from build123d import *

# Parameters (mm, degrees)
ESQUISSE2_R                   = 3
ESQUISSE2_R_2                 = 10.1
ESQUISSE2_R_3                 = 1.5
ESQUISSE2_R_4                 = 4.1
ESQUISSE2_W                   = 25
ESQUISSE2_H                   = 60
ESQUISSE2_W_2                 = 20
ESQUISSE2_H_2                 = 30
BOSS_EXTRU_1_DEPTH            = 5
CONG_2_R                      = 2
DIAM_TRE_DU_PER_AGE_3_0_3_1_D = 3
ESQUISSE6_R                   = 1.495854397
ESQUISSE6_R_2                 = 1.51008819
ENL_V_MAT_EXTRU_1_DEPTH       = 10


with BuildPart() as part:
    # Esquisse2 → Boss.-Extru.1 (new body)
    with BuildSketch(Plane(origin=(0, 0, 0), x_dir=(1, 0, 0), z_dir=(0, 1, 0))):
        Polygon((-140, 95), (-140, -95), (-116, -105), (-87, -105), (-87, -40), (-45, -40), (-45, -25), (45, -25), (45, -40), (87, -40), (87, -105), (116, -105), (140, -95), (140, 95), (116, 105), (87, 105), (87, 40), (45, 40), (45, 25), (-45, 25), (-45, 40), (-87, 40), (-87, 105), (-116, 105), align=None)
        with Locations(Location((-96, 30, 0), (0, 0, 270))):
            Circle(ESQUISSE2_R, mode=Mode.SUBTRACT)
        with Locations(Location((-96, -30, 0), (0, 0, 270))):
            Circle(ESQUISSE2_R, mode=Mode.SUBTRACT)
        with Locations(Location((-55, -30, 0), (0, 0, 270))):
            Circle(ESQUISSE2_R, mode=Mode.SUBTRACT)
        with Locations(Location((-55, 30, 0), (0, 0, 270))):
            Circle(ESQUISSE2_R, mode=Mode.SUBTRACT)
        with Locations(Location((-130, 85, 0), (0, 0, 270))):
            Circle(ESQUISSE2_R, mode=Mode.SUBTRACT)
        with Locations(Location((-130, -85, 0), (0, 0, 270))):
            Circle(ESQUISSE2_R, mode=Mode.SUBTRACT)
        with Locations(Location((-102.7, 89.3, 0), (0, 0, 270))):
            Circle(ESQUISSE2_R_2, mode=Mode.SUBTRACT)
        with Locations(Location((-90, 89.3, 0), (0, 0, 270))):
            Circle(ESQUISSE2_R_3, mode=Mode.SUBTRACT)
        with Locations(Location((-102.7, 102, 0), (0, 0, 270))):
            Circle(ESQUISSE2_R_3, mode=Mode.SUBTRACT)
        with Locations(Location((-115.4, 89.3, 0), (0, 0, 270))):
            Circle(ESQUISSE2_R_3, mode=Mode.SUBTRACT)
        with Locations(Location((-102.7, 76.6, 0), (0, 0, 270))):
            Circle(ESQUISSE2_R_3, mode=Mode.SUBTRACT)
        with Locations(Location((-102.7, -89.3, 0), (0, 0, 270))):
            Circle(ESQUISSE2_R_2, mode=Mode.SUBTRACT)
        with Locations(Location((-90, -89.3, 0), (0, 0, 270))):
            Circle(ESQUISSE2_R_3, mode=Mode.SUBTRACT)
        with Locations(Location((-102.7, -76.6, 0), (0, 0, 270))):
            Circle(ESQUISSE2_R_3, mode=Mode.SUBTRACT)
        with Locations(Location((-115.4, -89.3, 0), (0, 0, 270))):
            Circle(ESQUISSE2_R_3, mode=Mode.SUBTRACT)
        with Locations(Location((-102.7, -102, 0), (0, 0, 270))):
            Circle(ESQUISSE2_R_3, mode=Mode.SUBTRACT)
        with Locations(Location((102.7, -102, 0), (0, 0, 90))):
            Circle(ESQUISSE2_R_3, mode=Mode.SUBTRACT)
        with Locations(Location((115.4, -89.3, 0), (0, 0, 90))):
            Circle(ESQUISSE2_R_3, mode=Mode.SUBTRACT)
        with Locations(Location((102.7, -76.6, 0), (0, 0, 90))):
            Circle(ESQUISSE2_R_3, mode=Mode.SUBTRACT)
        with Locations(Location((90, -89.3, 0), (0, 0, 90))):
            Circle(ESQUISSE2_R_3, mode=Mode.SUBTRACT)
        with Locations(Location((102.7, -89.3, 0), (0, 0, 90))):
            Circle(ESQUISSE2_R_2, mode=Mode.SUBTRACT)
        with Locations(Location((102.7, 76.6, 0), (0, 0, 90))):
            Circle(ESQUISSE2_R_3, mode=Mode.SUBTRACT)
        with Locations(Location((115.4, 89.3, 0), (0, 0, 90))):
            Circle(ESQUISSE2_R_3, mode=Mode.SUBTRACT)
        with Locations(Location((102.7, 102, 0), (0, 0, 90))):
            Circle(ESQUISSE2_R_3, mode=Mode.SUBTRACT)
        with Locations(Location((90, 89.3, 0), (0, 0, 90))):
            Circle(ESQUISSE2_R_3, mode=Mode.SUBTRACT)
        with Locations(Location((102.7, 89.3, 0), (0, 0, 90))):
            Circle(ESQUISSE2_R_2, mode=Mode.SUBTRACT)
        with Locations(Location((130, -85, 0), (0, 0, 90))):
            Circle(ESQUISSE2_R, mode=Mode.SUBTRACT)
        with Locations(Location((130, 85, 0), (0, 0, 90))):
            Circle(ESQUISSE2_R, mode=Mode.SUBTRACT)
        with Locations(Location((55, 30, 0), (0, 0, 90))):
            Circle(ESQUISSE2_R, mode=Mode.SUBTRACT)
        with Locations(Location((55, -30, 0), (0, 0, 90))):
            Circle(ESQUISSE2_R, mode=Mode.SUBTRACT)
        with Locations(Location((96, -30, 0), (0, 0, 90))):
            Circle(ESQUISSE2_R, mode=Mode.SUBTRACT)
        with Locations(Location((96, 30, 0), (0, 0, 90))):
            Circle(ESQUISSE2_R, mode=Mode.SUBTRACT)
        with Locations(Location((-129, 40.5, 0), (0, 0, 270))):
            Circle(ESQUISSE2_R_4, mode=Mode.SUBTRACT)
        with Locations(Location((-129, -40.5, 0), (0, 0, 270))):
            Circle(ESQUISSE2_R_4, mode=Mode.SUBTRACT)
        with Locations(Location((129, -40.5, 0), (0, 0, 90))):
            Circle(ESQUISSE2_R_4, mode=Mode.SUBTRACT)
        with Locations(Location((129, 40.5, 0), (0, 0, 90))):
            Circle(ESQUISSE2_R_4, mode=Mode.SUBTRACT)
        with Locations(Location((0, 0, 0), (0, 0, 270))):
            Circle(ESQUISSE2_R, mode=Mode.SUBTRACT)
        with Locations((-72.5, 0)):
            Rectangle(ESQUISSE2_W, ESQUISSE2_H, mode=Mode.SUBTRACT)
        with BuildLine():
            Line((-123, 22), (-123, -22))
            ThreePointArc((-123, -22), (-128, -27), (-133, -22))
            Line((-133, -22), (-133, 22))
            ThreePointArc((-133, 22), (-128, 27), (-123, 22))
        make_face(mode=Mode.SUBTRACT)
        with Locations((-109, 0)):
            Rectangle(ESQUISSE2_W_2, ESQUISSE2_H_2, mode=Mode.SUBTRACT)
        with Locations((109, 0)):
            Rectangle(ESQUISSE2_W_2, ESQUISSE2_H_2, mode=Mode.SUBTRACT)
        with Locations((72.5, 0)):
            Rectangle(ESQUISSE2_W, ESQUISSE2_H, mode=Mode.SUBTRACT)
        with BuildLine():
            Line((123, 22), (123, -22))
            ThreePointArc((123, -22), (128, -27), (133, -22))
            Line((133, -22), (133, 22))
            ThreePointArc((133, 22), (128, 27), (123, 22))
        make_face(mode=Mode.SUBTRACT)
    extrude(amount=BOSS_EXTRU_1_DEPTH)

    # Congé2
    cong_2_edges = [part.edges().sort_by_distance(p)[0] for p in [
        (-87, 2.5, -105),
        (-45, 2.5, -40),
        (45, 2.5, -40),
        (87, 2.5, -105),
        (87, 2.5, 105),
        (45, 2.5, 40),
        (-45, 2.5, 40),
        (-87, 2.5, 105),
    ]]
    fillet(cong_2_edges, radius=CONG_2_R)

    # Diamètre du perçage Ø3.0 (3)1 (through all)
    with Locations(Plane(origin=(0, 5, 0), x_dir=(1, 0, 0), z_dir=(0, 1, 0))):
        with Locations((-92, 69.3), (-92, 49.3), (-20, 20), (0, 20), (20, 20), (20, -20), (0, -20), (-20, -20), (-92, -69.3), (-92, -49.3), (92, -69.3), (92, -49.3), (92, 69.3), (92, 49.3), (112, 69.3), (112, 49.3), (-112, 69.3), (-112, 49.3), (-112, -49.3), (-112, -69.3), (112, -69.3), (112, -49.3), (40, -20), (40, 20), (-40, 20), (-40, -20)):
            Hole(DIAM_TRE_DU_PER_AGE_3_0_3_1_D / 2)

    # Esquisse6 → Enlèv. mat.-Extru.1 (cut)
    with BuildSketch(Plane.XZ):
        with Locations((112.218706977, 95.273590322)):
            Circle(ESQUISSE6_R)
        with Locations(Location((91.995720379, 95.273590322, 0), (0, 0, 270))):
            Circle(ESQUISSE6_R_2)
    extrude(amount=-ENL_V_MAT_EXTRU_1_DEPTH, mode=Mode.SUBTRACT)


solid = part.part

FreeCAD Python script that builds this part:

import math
import FreeCAD as App
import Part
import Sketcher

V = App.Vector


def edges_at(feature, points):
    """Names of the edges that pass closest to the given points."""
    edges = feature.Shape.Edges
    near = lambda p: min(range(len(edges)), key=lambda i: edges[i].distToShape(Part.Vertex(*p))[0])
    return sorted({f"Edge{near(p) + 1}" for p in points})

doc = App.newDocument("Part")
params = doc.addObject("Spreadsheet::Sheet", "Params")
for row, (alias, value) in enumerate([
    ("sketch1_diameter", "3 mm"),
    ("sketch1_diameter2", "6 mm"),
    ("sketch1_radius", "5 mm"),
    ("sketch1_diameter3", "20.2 mm"),
    ("sketch1_diameter4", "8.2 mm"),
    ("pad1_length", "5 mm"),
    ("fillet_radius", "2 mm"),
    ("sketch2_diameter", "3 mm"),
    ("hole_diameter", "3 mm"),
    ("pocket1_length", "10 mm"),
], start=1):
    params.set(f"A{row}", alias)
    params.set(f"B{row}", "=" + value)
    params.setAlias(f"B{row}", alias)

body = doc.addObject("PartDesign::Body", "Body")

# Sketch on XZ plane
sketch1 = doc.addObject("Sketcher::SketchObject", "Sketch")
body.addObject(sketch1)
sketch1.AttachmentSupport = (doc.XZ_Plane, [""])
sketch1.MapMode = "FlatFace"
sketch1.addGeometry(Part.LineSegment(V(-140, -95, 0), V(-140, 95, 0)), False)
sketch1.addGeometry(Part.LineSegment(V(-140, 95, 0), V(-116, 105, 0)), False)
sketch1.addGeometry(Part.LineSegment(V(-116, 105, 0), V(-87, 105, 0)), False)
sketch1.addGeometry(Part.LineSegment(V(-87, 105, 0), V(-87, 40, 0)), False)
sketch1.addGeometry(Part.LineSegment(V(-87, 40, 0), V(-45, 40, 0)), False)
sketch1.addGeometry(Part.LineSegment(V(-45, 40, 0), V(-45, 25, 0)), False)
sketch1.addGeometry(Part.LineSegment(V(-45, 25, 0), V(45, 25, 0)), False)
sketch1.addGeometry(Part.LineSegment(V(45, 25, 0), V(45, 40, 0)), False)
sketch1.addGeometry(Part.LineSegment(V(45, 40, 0), V(87, 40, 0)), False)
sketch1.addGeometry(Part.LineSegment(V(87, 40, 0), V(87, 105, 0)), False)
sketch1.addGeometry(Part.LineSegment(V(87, 105, 0), V(116, 105, 0)), False)
sketch1.addGeometry(Part.LineSegment(V(116, 105, 0), V(140, 95, 0)), False)
sketch1.addGeometry(Part.LineSegment(V(140, 95, 0), V(140, -95, 0)), False)
sketch1.addGeometry(Part.LineSegment(V(140, -95, 0), V(116, -105, 0)), False)
sketch1.addGeometry(Part.LineSegment(V(116, -105, 0), V(87, -105, 0)), False)
sketch1.addGeometry(Part.LineSegment(V(87, -105, 0), V(87, -40, 0)), False)
sketch1.addGeometry(Part.LineSegment(V(87, -40, 0), V(45, -40, 0)), False)
sketch1.addGeometry(Part.LineSegment(V(45, -40, 0), V(45, -25, 0)), False)
sketch1.addGeometry(Part.LineSegment(V(45, -25, 0), V(-45, -25, 0)), False)
sketch1.addGeometry(Part.LineSegment(V(-45, -25, 0), V(-45, -40, 0)), False)
sketch1.addGeometry(Part.LineSegment(V(-45, -40, 0), V(-87, -40, 0)), False)
sketch1.addGeometry(Part.LineSegment(V(-87, -40, 0), V(-87, -105, 0)), False)
sketch1.addGeometry(Part.LineSegment(V(-87, -105, 0), V(-116, -105, 0)), False)
sketch1.addGeometry(Part.LineSegment(V(-116, -105, 0), V(-140, -95, 0)), False)
sketch1.addGeometry(Part.Circle(V(-102.7, 102, 0), V(0, 0, 1), 1.5), False)
sketch1.addGeometry(Part.Circle(V(-130, 85, 0), V(0, 0, 1), 3), False)
sketch1.addGeometry(Part.Circle(V(-115.4, 89.3, 0), V(0, 0, 1), 1.5), False)
sketch1.addGeometry(Part.Circle(V(-102.7, 89.3, 0), V(0, 0, 1), 10.1), False)
sketch1.addGeometry(Part.Circle(V(-90, 89.3, 0), V(0, 0, 1), 1.5), False)
sketch1.addGeometry(Part.Circle(V(-102.7, 76.6, 0), V(0, 0, 1), 1.5), False)
sketch1.addGeometry(Part.Circle(V(-129, 40.5, 0), V(0, 0, 1), 4.1), False)
sketch1.addGeometry(Part.Circle(V(-96, 30, 0), V(0, 0, 1), 3), False)
sketch1.addGeometry(Part.Circle(V(-55, 30, 0), V(0, 0, 1), 3), False)
sketch1.addGeometry(Part.Circle(V(90, 89.3, 0), V(0, 0, 1), 1.5), False)
sketch1.addGeometry(Part.Circle(V(102.7, 102, 0), V(0, 0, 1), 1.5), False)
sketch1.addGeometry(Part.Circle(V(102.7, 89.3, 0), V(0, 0, 1), 10.1), False)
sketch1.addGeometry(Part.Circle(V(115.4, 89.3, 0), V(0, 0, 1), 1.5), False)
sketch1.addGeometry(Part.Circle(V(130, 85, 0), V(0, 0, 1), 3), False)
sketch1.addGeometry(Part.Circle(V(102.7, 76.6, 0), V(0, 0, 1), 1.5), False)
sketch1.addGeometry(Part.Circle(V(55, 30, 0), V(0, 0, 1), 3), False)
sketch1.addGeometry(Part.Circle(V(96, 30, 0), V(0, 0, 1), 3), False)
sketch1.addGeometry(Part.Circle(V(129, 40.5, 0), V(0, 0, 1), 4.1), False)
sketch1.addGeometry(Part.ArcOfCircle(Part.Circle(V(-128, -22, 0), V(0, 0, 1), 5), math.radians(180), math.radians(360)), False)
sketch1.addGeometry(Part.LineSegment(V(-123, -22, 0), V(-123, 22, 0)), False)
sketch1.addGeometry(Part.ArcOfCircle(Part.Circle(V(-128, 22, 0), V(0, 0, 1), 5), math.radians(0), math.radians(180)), False)
sketch1.addGeometry(Part.LineSegment(V(-133, 22, 0), V(-133, -22, 0)), False)
sketch1.addGeometry(Part.LineSegment(V(-99, 15, 0), V(-119, 15, 0)), False)
sketch1.addGeometry(Part.LineSegment(V(-119, 15, 0), V(-119, -15, 0)), False)
sketch1.addGeometry(Part.LineSegment(V(-119, -15, 0), V(-99, -15, 0)), False)
sketch1.addGeometry(Part.LineSegment(V(-99, -15, 0), V(-99, 15, 0)), False)
sketch1.addGeometry(Part.LineSegment(V(-60, 30, 0), V(-85, 30, 0)), False)
sketch1.addGeometry(Part.LineSegment(V(-85, 30, 0), V(-85, -30, 0)), False)
sketch1.addGeometry(Part.LineSegment(V(-85, -30, 0), V(-60, -30, 0)), False)
sketch1.addGeometry(Part.LineSegment(V(-60, -30, 0), V(-60, 30, 0)), False)
sketch1.addGeometry(Part.Circle(V(-129, -40.5, 0), V(0, 0, 1), 4.1), False)
sketch1.addGeometry(Part.Circle(V(-96, -30, 0), V(0, 0, 1), 3), False)
sketch1.addGeometry(Part.Circle(V(-55, -30, 0), V(0, 0, 1), 3), False)
sketch1.addGeometry(Part.Circle(V(-102.7, -76.6, 0), V(0, 0, 1), 1.5), False)
sketch1.addGeometry(Part.Circle(V(-130, -85, 0), V(0, 0, 1), 3), False)
sketch1.addGeometry(Part.Circle(V(-115.4, -89.3, 0), V(0, 0, 1), 1.5), False)
sketch1.addGeometry(Part.Circle(V(-102.7, -89.3, 0), V(0, 0, 1), 10.1), False)
sketch1.addGeometry(Part.Circle(V(-102.7, -102, 0), V(0, 0, 1), 1.5), False)
sketch1.addGeometry(Part.Circle(V(-90, -89.3, 0), V(0, 0, 1), 1.5), False)
sketch1.addGeometry(Part.Circle(V(0, 0, 0), V(0, 0, 1), 3), False)
sketch1.addGeometry(Part.Circle(V(55, -30, 0), V(0, 0, 1), 3), False)
sketch1.addGeometry(Part.LineSegment(V(85, 30, 0), V(60, 30, 0)), False)
sketch1.addGeometry(Part.LineSegment(V(60, 30, 0), V(60, -30, 0)), False)
sketch1.addGeometry(Part.LineSegment(V(60, -30, 0), V(85, -30, 0)), False)
sketch1.addGeometry(Part.LineSegment(V(85, -30, 0), V(85, 30, 0)), False)
sketch1.addGeometry(Part.LineSegment(V(119, 15, 0), V(99, 15, 0)), False)
sketch1.addGeometry(Part.LineSegment(V(99, 15, 0), V(99, -15, 0)), False)
sketch1.addGeometry(Part.LineSegment(V(99, -15, 0), V(119, -15, 0)), False)
sketch1.addGeometry(Part.LineSegment(V(119, -15, 0), V(119, 15, 0)), False)
sketch1.addGeometry(Part.LineSegment(V(123, 22, 0), V(123, -22, 0)), False)
sketch1.addGeometry(Part.ArcOfCircle(Part.Circle(V(128, -22, 0), V(0, 0, 1), 5), math.radians(180), math.radians(360)), False)
sketch1.addGeometry(Part.LineSegment(V(133, -22, 0), V(133, 22, 0)), False)
sketch1.addGeometry(Part.ArcOfCircle(Part.Circle(V(128, 22, 0), V(0, 0, 1), 5), math.radians(0), math.radians(180)), False)
sketch1.addGeometry(Part.Circle(V(96, -30, 0), V(0, 0, 1), 3), False)
sketch1.addGeometry(Part.Circle(V(129, -40.5, 0), V(0, 0, 1), 4.1), False)
sketch1.addGeometry(Part.Circle(V(102.7, -76.6, 0), V(0, 0, 1), 1.5), False)
sketch1.addGeometry(Part.Circle(V(90, -89.3, 0), V(0, 0, 1), 1.5), False)
sketch1.addGeometry(Part.Circle(V(102.7, -89.3, 0), V(0, 0, 1), 10.1), False)
sketch1.addGeometry(Part.Circle(V(115.4, -89.3, 0), V(0, 0, 1), 1.5), False)
sketch1.addGeometry(Part.Circle(V(130, -85, 0), V(0, 0, 1), 3), False)
sketch1.addGeometry(Part.Circle(V(102.7, -102, 0), V(0, 0, 1), 1.5), False)
sketch1.addConstraint(Sketcher.Constraint("Coincident", 0, 2, 1, 1))
sketch1.addConstraint(Sketcher.Constraint("Coincident", 1, 2, 2, 1))
sketch1.addConstraint(Sketcher.Constraint("Coincident", 2, 2, 3, 1))
sketch1.addConstraint(Sketcher.Constraint("Coincident", 3, 2, 4, 1))
sketch1.addConstraint(Sketcher.Constraint("Coincident", 4, 2, 5, 1))
sketch1.addConstraint(Sketcher.Constraint("Coincident", 5, 2, 6, 1))
sketch1.addConstraint(Sketcher.Constraint("Coincident", 6, 2, 7, 1))
sketch1.addConstraint(Sketcher.Constraint("Coincident", 7, 2, 8, 1))
sketch1.addConstraint(Sketcher.Constraint("Coincident", 8, 2, 9, 1))
sketch1.addConstraint(Sketcher.Constraint("Coincident", 9, 2, 10, 1))
sketch1.addConstraint(Sketcher.Constraint("Coincident", 10, 2, 11, 1))
sketch1.addConstraint(Sketcher.Constraint("Coincident", 11, 2, 12, 1))
sketch1.addConstraint(Sketcher.Constraint("Coincident", 12, 2, 13, 1))
sketch1.addConstraint(Sketcher.Constraint("Coincident", 13, 2, 14, 1))
sketch1.addConstraint(Sketcher.Constraint("Coincident", 14, 2, 15, 1))
sketch1.addConstraint(Sketcher.Constraint("Coincident", 15, 2, 16, 1))
sketch1.addConstraint(Sketcher.Constraint("Coincident", 16, 2, 17, 1))
sketch1.addConstraint(Sketcher.Constraint("Coincident", 17, 2, 18, 1))
sketch1.addConstraint(Sketcher.Constraint("Coincident", 18, 2, 19, 1))
sketch1.addConstraint(Sketcher.Constraint("Coincident", 19, 2, 20, 1))
sketch1.addConstraint(Sketcher.Constraint("Coincident", 20, 2, 21, 1))
sketch1.addConstraint(Sketcher.Constraint("Coincident", 21, 2, 22, 1))
sketch1.addConstraint(Sketcher.Constraint("Coincident", 22, 2, 23, 1))
sketch1.addConstraint(Sketcher.Constraint("Coincident", 23, 2, 0, 1))
sketch1.addConstraint(Sketcher.Constraint("Tangent", 42, 2, 43, 1))
sketch1.addConstraint(Sketcher.Constraint("Tangent", 43, 2, 44, 1))
sketch1.addConstraint(Sketcher.Constraint("Tangent", 44, 2, 45, 1))
sketch1.addConstraint(Sketcher.Constraint("Tangent", 45, 2, 42, 1))
sketch1.addConstraint(Sketcher.Constraint("Coincident", 46, 2, 47, 1))
sketch1.addConstraint(Sketcher.Constraint("Coincident", 47, 2, 48, 1))
sketch1.addConstraint(Sketcher.Constraint("Coincident", 48, 2, 49, 1))
sketch1.addConstraint(Sketcher.Constraint("Coincident", 49, 2, 46, 1))
sketch1.addConstraint(Sketcher.Constraint("Coincident", 50, 2, 51, 1))
sketch1.addConstraint(Sketcher.Constraint("Coincident", 51, 2, 52, 1))
sketch1.addConstraint(Sketcher.Constraint("Coincident", 52, 2, 53, 1))
sketch1.addConstraint(Sketcher.Constraint("Coincident", 53, 2, 50, 1))
sketch1.addConstraint(Sketcher.Constraint("Coincident", 65, 2, 66, 1))
sketch1.addConstraint(Sketcher.Constraint("Coincident", 66, 2, 67, 1))
sketch1.addConstraint(Sketcher.Constraint("Coincident", 67, 2, 68, 1))
sketch1.addConstraint(Sketcher.Constraint("Coincident", 68, 2, 65, 1))
sketch1.addConstraint(Sketcher.Constraint("Coincident", 69, 2, 70, 1))
sketch1.addConstraint(Sketcher.Constraint("Coincident", 70, 2, 71, 1))
sketch1.addConstraint(Sketcher.Constraint("Coincident", 71, 2, 72, 1))
sketch1.addConstraint(Sketcher.Constraint("Coincident", 72, 2, 69, 1))
sketch1.addConstraint(Sketcher.Constraint("Tangent", 73, 2, 74, 1))
sketch1.addConstraint(Sketcher.Constraint("Tangent", 74, 2, 75, 1))
sketch1.addConstraint(Sketcher.Constraint("Tangent", 75, 2, 76, 1))
sketch1.addConstraint(Sketcher.Constraint("Tangent", 76, 2, 73, 1))
sketch1.addConstraint(Sketcher.Constraint("Vertical", 0))
sketch1.addConstraint(Sketcher.Constraint("Horizontal", 2))
sketch1.addConstraint(Sketcher.Constraint("Vertical", 3))
sketch1.addConstraint(Sketcher.Constraint("Horizontal", 4))
sketch1.addConstraint(Sketcher.Constraint("Vertical", 5))
sketch1.addConstraint(Sketcher.Constraint("Horizontal", 6))
sketch1.addConstraint(Sketcher.Constraint("Vertical", 7))
sketch1.addConstraint(Sketcher.Constraint("Horizontal", 8))
sketch1.addConstraint(Sketcher.Constraint("Vertical", 9))
sketch1.addConstraint(Sketcher.Constraint("Horizontal", 10))
sketch1.addConstraint(Sketcher.Constraint("Vertical", 12))
sketch1.addConstraint(Sketcher.Constraint("Horizontal", 14))
sketch1.addConstraint(Sketcher.Constraint("Vertical", 15))
sketch1.addConstraint(Sketcher.Constraint("Horizontal", 16))
sketch1.addConstraint(Sketcher.Constraint("Vertical", 17))
sketch1.addConstraint(Sketcher.Constraint("Horizontal", 18))
sketch1.addConstraint(Sketcher.Constraint("Vertical", 19))
sketch1.addConstraint(Sketcher.Constraint("Horizontal", 20))
sketch1.addConstraint(Sketcher.Constraint("Vertical", 21))
sketch1.addConstraint(Sketcher.Constraint("Horizontal", 22))
sketch1.addConstraint(Sketcher.Constraint("Vertical", 43))
sketch1.addConstraint(Sketcher.Constraint("Vertical", 45))
sketch1.addConstraint(Sketcher.Constraint("Horizontal", 46))
sketch1.addConstraint(Sketcher.Constraint("Vertical", 47))
sketch1.addConstraint(Sketcher.Constraint("Horizontal", 48))
sketch1.addConstraint(Sketcher.Constraint("Vertical", 49))
sketch1.addConstraint(Sketcher.Constraint("Horizontal", 50))
sketch1.addConstraint(Sketcher.Constraint("Vertical", 51))
sketch1.addConstraint(Sketcher.Constraint("Horizontal", 52))
sketch1.addConstraint(Sketcher.Constraint("Vertical", 53))
sketch1.addConstraint(Sketcher.Constraint("Horizontal", 65))
sketch1.addConstraint(Sketcher.Constraint("Vertical", 66))
sketch1.addConstraint(Sketcher.Constraint("Horizontal", 67))
sketch1.addConstraint(Sketcher.Constraint("Vertical", 68))
sketch1.addConstraint(Sketcher.Constraint("Horizontal", 69))
sketch1.addConstraint(Sketcher.Constraint("Vertical", 70))
sketch1.addConstraint(Sketcher.Constraint("Horizontal", 71))
sketch1.addConstraint(Sketcher.Constraint("Vertical", 72))
sketch1.addConstraint(Sketcher.Constraint("Vertical", 73))
sketch1.addConstraint(Sketcher.Constraint("Vertical", 75))
sketch1.addConstraint(Sketcher.Constraint("Coincident", 63, 3, -1, 1))
sketch1.addConstraint(Sketcher.Constraint("Equal", 24, 26))
sketch1.addConstraint(Sketcher.Constraint("Equal", 26, 28))
sketch1.addConstraint(Sketcher.Constraint("Equal", 28, 29))
sketch1.addConstraint(Sketcher.Constraint("Equal", 25, 31))
sketch1.addConstraint(Sketcher.Constraint("Equal", 31, 32))
sketch1.addConstraint(Sketcher.Constraint("Equal", 29, 33))
sketch1.addConstraint(Sketcher.Constraint("Equal", 33, 34))
sketch1.addConstraint(Sketcher.Constraint("Equal", 27, 35))
sketch1.addConstraint(Sketcher.Constraint("Equal", 34, 36))
sketch1.addConstraint(Sketcher.Constraint("Equal", 32, 37))
sketch1.addConstraint(Sketcher.Constraint("Equal", 36, 38))
sketch1.addConstraint(Sketcher.Constraint("Equal", 37, 39))
sketch1.addConstraint(Sketcher.Constraint("Equal", 39, 40))
sketch1.addConstraint(Sketcher.Constraint("Equal", 30, 41))
sketch1.addConstraint(Sketcher.Constraint("Equal", 41, 54))
sketch1.addConstraint(Sketcher.Constraint("Equal", 40, 55))
sketch1.addConstraint(Sketcher.Constraint("Equal", 55, 56))
sketch1.addConstraint(Sketcher.Constraint("Equal", 38, 57))
sketch1.addConstraint(Sketcher.Constraint("Equal", 56, 58))
sketch1.addConstraint(Sketcher.Constraint("Equal", 57, 59))
sketch1.addConstraint(Sketcher.Constraint("Equal", 35, 60))
sketch1.addConstraint(Sketcher.Constraint("Equal", 59, 61))
sketch1.addConstraint(Sketcher.Constraint("Equal", 61, 62))
sketch1.addConstraint(Sketcher.Constraint("Equal", 58, 63))
sketch1.addConstraint(Sketcher.Constraint("Equal", 63, 64))
sketch1.addConstraint(Sketcher.Constraint("Equal", 44, 74))
sketch1.addConstraint(Sketcher.Constraint("Equal", 64, 77))
sketch1.addConstraint(Sketcher.Constraint("Equal", 54, 78))
sketch1.addConstraint(Sketcher.Constraint("Equal", 62, 79))
sketch1.addConstraint(Sketcher.Constraint("Equal", 79, 80))
sketch1.addConstraint(Sketcher.Constraint("Equal", 60, 81))
sketch1.addConstraint(Sketcher.Constraint("Equal", 80, 82))
sketch1.addConstraint(Sketcher.Constraint("Equal", 77, 83))
sketch1.addConstraint(Sketcher.Constraint("Equal", 82, 84))
sketch1.addConstraint(Sketcher.Constraint("Symmetric", 41, 3, 54, 3, -1, 1))
sketch1.addConstraint(Sketcher.Constraint("Symmetric", 40, 3, 55, 3, -1, 1))
sketch1.addConstraint(Sketcher.Constraint("Symmetric", 39, 3, 56, 3, -1, 1))
sketch1.addConstraint(Sketcher.Constraint("Symmetric", 38, 3, 57, 3, -1, 1))
sketch1.addConstraint(Sketcher.Constraint("Symmetric", 37, 3, 58, 3, -1, 1))
sketch1.addConstraint(Sketcher.Constraint("Symmetric", 36, 3, 59, 3, -1, 1))
sketch1.addConstraint(Sketcher.Constraint("Symmetric", 35, 3, 60, 3, -1, 1))
sketch1.addConstraint(Sketcher.Constraint("Symmetric", 34, 3, 61, 3, -1, 1))
sketch1.addConstraint(Sketcher.Constraint("Symmetric", 33, 3, 62, 3, -1, 1))
sketch1.addConstraint(Sketcher.Constraint("Symmetric", 32, 3, 64, 3, -1, 1))
sketch1.addConstraint(Sketcher.Constraint("Symmetric", 44, 3, 74, 3, -1, 1))
sketch1.addConstraint(Sketcher.Constraint("Symmetric", 31, 3, 77, 3, -1, 1))
sketch1.addConstraint(Sketcher.Constraint("Symmetric", 30, 3, 78, 3, -1, 1))
sketch1.addConstraint(Sketcher.Constraint("Symmetric", 29, 3, 79, 3, -1, 1))
sketch1.addConstraint(Sketcher.Constraint("Symmetric", 28, 3, 80, 3, -1, 1))
sketch1.addConstraint(Sketcher.Constraint("Symmetric", 27, 3, 81, 3, -1, 1))
sketch1.addConstraint(Sketcher.Constraint("Symmetric", 26, 3, 82, 3, -1, 1))
sketch1.addConstraint(Sketcher.Constraint("Symmetric", 25, 3, 83, 3, -1, 1))
sketch1.addConstraint(Sketcher.Constraint("Symmetric", 24, 3, 84, 3, -1, 1))
sketch1.addConstraint(Sketcher.Constraint("Symmetric", 0, 2, 12, 2, -1, 1))
sketch1.addConstraint(Sketcher.Constraint("Symmetric", 1, 2, 13, 2, -1, 1))
sketch1.addConstraint(Sketcher.Constraint("Symmetric", 3, 2, 15, 2, -1, 1))
sketch1.addConstraint(Sketcher.Constraint("Symmetric", 5, 2, 17, 2, -1, 1))
sketch1.addConstraint(Sketcher.Constraint("Symmetric", 7, 2, 19, 2, -1, 1))
sketch1.addConstraint(Sketcher.Constraint("Symmetric", 9, 2, 21, 2, -1, 1))
sketch1.addConstraint(Sketcher.Constraint("Symmetric", 52, 2, 65, 2, -1, 1))
sketch1.addConstraint(Sketcher.Constraint("Symmetric", 50, 2, 67, 2, -1, 1))
sketch1.addConstraint(Sketcher.Constraint("Symmetric", 48, 2, 69, 2, -1, 1))
sketch1.addConstraint(Sketcher.Constraint("Symmetric", 46, 2, 71, 2, -1, 1))
sketch1.addConstraint(Sketcher.Constraint("Symmetric", 28, 3, 33, 3, -2))
sketch1.addConstraint(Sketcher.Constraint("Symmetric", 24, 3, 34, 3, -2))
sketch1.addConstraint(Sketcher.Constraint("Symmetric", 27, 3, 35, 3, -2))
sketch1.addConstraint(Sketcher.Constraint("Symmetric", 26, 3, 36, 3, -2))
sketch1.addConstraint(Sketcher.Constraint("Symmetric", 25, 3, 37, 3, -2))
sketch1.addConstraint(Sketcher.Constraint("Symmetric", 29, 3, 38, 3, -2))
sketch1.addConstraint(Sketcher.Constraint("Symmetric", 32, 3, 39, 3, -2))
sketch1.addConstraint(Sketcher.Constraint("Symmetric", 31, 3, 40, 3, -2))
sketch1.addConstraint(Sketcher.Constraint("Symmetric", 30, 3, 41, 3, -2))
sketch1.addConstraint(Sketcher.Constraint("Symmetric", 4, 2, 7, 2, -2))
sketch1.addConstraint(Sketcher.Constraint("Symmetric", 2, 2, 9, 2, -2))
sketch1.addConstraint(Sketcher.Constraint("Parallel", 11, 23))
sketch1.addConstraint(Sketcher.Constraint("Horizontal", 26, 3, 27, 3))
sketch1.addConstraint(Sketcher.Constraint("Horizontal", 27, 3, 28, 3))
sketch1.addConstraint(Sketcher.Constraint("Horizontal", 31, 3, 32, 3))
sketch1.addConstraint(Sketcher.Constraint("Horizontal", 42, 3, 74, 3))
sketch1.addConstraint(Sketcher.Constraint("Horizontal", 44, 3, 76, 3))
sketch1.addConstraint(Sketcher.Constraint("Horizontal", 0, 2, 11, 2))
sketch1.addConstraint(Sketcher.Constraint("Horizontal", 12, 2, 23, 2))
sketch1.addConstraint(Sketcher.Constraint("Horizontal", 40, 3, 50, 2))
sketch1.addConstraint(Sketcher.Constraint("Horizontal", 77, 3, 51, 2))
sketch1.addConstraint(Sketcher.Constraint("Horizontal", 49, 2, 69, 2))
sketch1.addConstraint(Sketcher.Constraint("Vertical", 24, 3, 27, 3))
sketch1.addConstraint(Sketcher.Constraint("Vertical", 27, 3, 29, 3))
sketch1.addConstraint(Sketcher.Constraint("Vertical", 10, 2, 13, 2))
sketch1.addConstraint(Sketcher.Constraint("Diameter", 24, 3.0))
sketch1.addConstraint(Sketcher.Constraint("Diameter", 25, 6.0))
sketch1.addConstraint(Sketcher.Constraint("Radius", 42, 5.0))
sketch1.addConstraint(Sketcher.Constraint("Diameter", 27, 20.2))
sketch1.addConstraint(Sketcher.Constraint("Diameter", 30, 8.2))
sketch1.addConstraint(Sketcher.Constraint("DistanceX", 2, 1, 2, 2, 29.0))
sketch1.addConstraint(Sketcher.Constraint("DistanceX", 4, 1, 4, 2, 42.0))
sketch1.addConstraint(Sketcher.Constraint("DistanceX", 6, 1, 6, 2, 90.0))
sketch1.addConstraint(Sketcher.Constraint("DistanceX", 46, 2, 46, 1, 20.0))
sketch1.addConstraint(Sketcher.Constraint("DistanceX", 50, 2, 50, 1, 25.0))
sketch1.addConstraint(Sketcher.Constraint("DistanceY", 0, 1, 0, 2, 190.0))
sketch1.addConstraint(Sketcher.Constraint("DistanceY", 3, 2, 3, 1, 65.0))
sketch1.addConstraint(Sketcher.Constraint("DistanceY", 5, 2, 5, 1, 15.0))
sketch1.addConstraint(Sketcher.Constraint("DistanceY", 43, 1, 43, 2, 44.0))
sketch1.addConstraint(Sketcher.Constraint("DistanceY", 47, 2, 47, 1, 30.0))
sketch1.addConstraint(Sketcher.Constraint("DistanceY", 51, 2, 51, 1, 60.0))
sketch1.addConstraint(Sketcher.Constraint("Distance", 1, 26.0))
sketch1.addConstraint(Sketcher.Constraint("DistanceY", -1, 1, 24, 3, 102.0))
sketch1.addConstraint(Sketcher.Constraint("DistanceX", 25, 3, -1, 1, 130.0))
sketch1.addConstraint(Sketcher.Constraint("DistanceY", -1, 1, 25, 3, 85.0))
sketch1.addConstraint(Sketcher.Constraint("DistanceX", 28, 3, -1, 1, 90.0))
sketch1.addConstraint(Sketcher.Constraint("DistanceX", 30, 3, -1, 1, 129.0))
sketch1.addConstraint(Sketcher.Constraint("DistanceX", 31, 3, -1, 1, 96.0))
sketch1.addConstraint(Sketcher.Constraint("DistanceX", 32, 3, -1, 1, 55.0))
sketch1.addConstraint(Sketcher.Constraint("DistanceX", 42, 3, -1, 1, 128.0))
sketch1.addConstraint(Sketcher.Constraint("DistanceX", 0, 2, -1, 1, 140.0))
sketch1.addConstraint(Sketcher.Constraint("DistanceX", 46, 2, -1, 1, 119.0))
sketch1.addConstraint(Sketcher.Constraint("DistanceX", 50, 2, -1, 1, 85.0))
sketch1.addConstraint(Sketcher.Constraint("DistanceX", 24, 3, -1, 1, 102.7))
sketch1.addConstraint(Sketcher.Constraint("DistanceX", 26, 3, -1, 1, 115.4))
sketch1.addConstraint(Sketcher.Constraint("DistanceY", -1, 1, 26, 3, 89.3))
sketch1.addConstraint(Sketcher.Constraint("DistanceY", -1, 1, 29, 3, 76.6))
sketch1.addConstraint(Sketcher.Constraint("DistanceY", -1, 1, 30, 3, 40.5))
sketch1.setExpression("Constraints[177]", "Params.sketch1_diameter")
sketch1.setExpression("Constraints[178]", "Params.sketch1_diameter2")
sketch1.setExpression("Constraints[179]", "Params.sketch1_radius")
sketch1.setExpression("Constraints[180]", "Params.sketch1_diameter3")
sketch1.setExpression("Constraints[181]", "Params.sketch1_diameter4")
pad1 = doc.addObject("PartDesign::Pad", "Pad")
body.addObject(pad1)
pad1.Profile = sketch1
pad1.setExpression("Length", "Params.pad1_length")
pad1.Reversed = True
doc.recompute()

fillet = doc.addObject("PartDesign::Fillet", "Fillet")
body.addObject(fillet)
fillet.Base = (pad1, edges_at(pad1, [
    (-87, 2.5, -105),
    (-45, 2.5, -40),
    (45, 2.5, -40),
    (87, 2.5, -105),
    (87, 2.5, 105),
    (45, 2.5, 40),
    (-45, 2.5, 40),
    (-87, 2.5, 105),
]))
fillet.setExpression("Radius", "Params.fillet_radius")

# Sketch on XZ plane
sketch2 = doc.addObject("Sketcher::SketchObject", "Sketch001")
body.addObject(sketch2)
sketch2.AttachmentSupport = (doc.XZ_Plane, [""])
sketch2.MapMode = "FlatFace"
sketch2.AttachmentOffset = App.Placement(V(0, 0, -5), App.Rotation())
sketch2.addGeometry(Part.Circle(V(-92, -69.3, 0), V(0, 0, 1), 1.5), False)
sketch2.addGeometry(Part.Circle(V(-92, -49.3, 0), V(0, 0, 1), 1.5), False)
sketch2.addGeometry(Part.Circle(V(-20, -20, 0), V(0, 0, 1), 1.5), False)
sketch2.addGeometry(Part.Circle(V(0, -20, 0), V(0, 0, 1), 1.5), False)
sketch2.addGeometry(Part.Circle(V(20, -20, 0), V(0, 0, 1), 1.5), False)
sketch2.addGeometry(Part.Circle(V(20, 20, 0), V(0, 0, 1), 1.5), False)
sketch2.addGeometry(Part.Circle(V(0, 20, 0), V(0, 0, 1), 1.5), False)
sketch2.addGeometry(Part.Circle(V(-20, 20, 0), V(0, 0, 1), 1.5), False)
sketch2.addGeometry(Part.Circle(V(-92, 69.3, 0), V(0, 0, 1), 1.5), False)
sketch2.addGeometry(Part.Circle(V(-92, 49.3, 0), V(0, 0, 1), 1.5), False)
sketch2.addGeometry(Part.Circle(V(92, 69.3, 0), V(0, 0, 1), 1.5), False)
sketch2.addGeometry(Part.Circle(V(92, 49.3, 0), V(0, 0, 1), 1.5), False)
sketch2.addGeometry(Part.Circle(V(92, -69.3, 0), V(0, 0, 1), 1.5), False)
sketch2.addGeometry(Part.Circle(V(92, -49.3, 0), V(0, 0, 1), 1.5), False)
sketch2.addGeometry(Part.Circle(V(112, -69.3, 0), V(0, 0, 1), 1.5), False)
sketch2.addGeometry(Part.Circle(V(112, -49.3, 0), V(0, 0, 1), 1.5), False)
sketch2.addGeometry(Part.Circle(V(-112, -69.3, 0), V(0, 0, 1), 1.5), False)
sketch2.addGeometry(Part.Circle(V(-112, -49.3, 0), V(0, 0, 1), 1.5), False)
sketch2.addGeometry(Part.Circle(V(-112, 49.3, 0), V(0, 0, 1), 1.5), False)
sketch2.addGeometry(Part.Circle(V(-112, 69.3, 0), V(0, 0, 1), 1.5), False)
sketch2.addGeometry(Part.Circle(V(112, 69.3, 0), V(0, 0, 1), 1.5), False)
sketch2.addGeometry(Part.Circle(V(112, 49.3, 0), V(0, 0, 1), 1.5), False)
sketch2.addGeometry(Part.Circle(V(40, 20, 0), V(0, 0, 1), 1.5), False)
sketch2.addGeometry(Part.Circle(V(40, -20, 0), V(0, 0, 1), 1.5), False)
sketch2.addGeometry(Part.Circle(V(-40, -20, 0), V(0, 0, 1), 1.5), False)
sketch2.addGeometry(Part.Circle(V(-40, 20, 0), V(0, 0, 1), 1.5), False)
sketch2.addConstraint(Sketcher.Constraint("Equal", 0, 1))
sketch2.addConstraint(Sketcher.Constraint("Equal", 1, 2))
sketch2.addConstraint(Sketcher.Constraint("Equal", 2, 3))
sketch2.addConstraint(Sketcher.Constraint("Equal", 3, 4))
sketch2.addConstraint(Sketcher.Constraint("Equal", 4, 5))
sketch2.addConstraint(Sketcher.Constraint("Equal", 5, 6))
sketch2.addConstraint(Sketcher.Constraint("Equal", 6, 7))
sketch2.addConstraint(Sketcher.Constraint("Equal", 7, 8))
sketch2.addConstraint(Sketcher.Constraint("Equal", 8, 9))
sketch2.addConstraint(Sketcher.Constraint("Equal", 9, 10))
sketch2.addConstraint(Sketcher.Constraint("Equal", 10, 11))
sketch2.addConstraint(Sketcher.Constraint("Equal", 11, 12))
sketch2.addConstraint(Sketcher.Constraint("Equal", 12, 13))
sketch2.addConstraint(Sketcher.Constraint("Equal", 13, 14))
sketch2.addConstraint(Sketcher.Constraint("Equal", 14, 15))
sketch2.addConstraint(Sketcher.Constraint("Equal", 15, 16))
sketch2.addConstraint(Sketcher.Constraint("Equal", 16, 17))
sketch2.addConstraint(Sketcher.Constraint("Equal", 17, 18))
sketch2.addConstraint(Sketcher.Constraint("Equal", 18, 19))
sketch2.addConstraint(Sketcher.Constraint("Equal", 19, 20))
sketch2.addConstraint(Sketcher.Constraint("Equal", 20, 21))
sketch2.addConstraint(Sketcher.Constraint("Equal", 21, 22))
sketch2.addConstraint(Sketcher.Constraint("Equal", 22, 23))
sketch2.addConstraint(Sketcher.Constraint("Equal", 23, 24))
sketch2.addConstraint(Sketcher.Constraint("Equal", 24, 25))
sketch2.addConstraint(Sketcher.Constraint("Symmetric", 2, 3, 5, 3, -1, 1))
sketch2.addConstraint(Sketcher.Constraint("Symmetric", 3, 3, 6, 3, -1, 1))
sketch2.addConstraint(Sketcher.Constraint("Symmetric", 4, 3, 7, 3, -1, 1))
sketch2.addConstraint(Sketcher.Constraint("Symmetric", 0, 3, 10, 3, -1, 1))
sketch2.addConstraint(Sketcher.Constraint("Symmetric", 1, 3, 11, 3, -1, 1))
sketch2.addConstraint(Sketcher.Constraint("Symmetric", 8, 3, 12, 3, -1, 1))
sketch2.addConstraint(Sketcher.Constraint("Symmetric", 9, 3, 13, 3, -1, 1))
sketch2.addConstraint(Sketcher.Constraint("Symmetric", 15, 3, 18, 3, -1, 1))
sketch2.addConstraint(Sketcher.Constraint("Symmetric", 14, 3, 19, 3, -1, 1))
sketch2.addConstraint(Sketcher.Constraint("Symmetric", 16, 3, 20, 3, -1, 1))
sketch2.addConstraint(Sketcher.Constraint("Symmetric", 17, 3, 21, 3, -1, 1))
sketch2.addConstraint(Sketcher.Constraint("Symmetric", 22, 3, 24, 3, -1, 1))
sketch2.addConstraint(Sketcher.Constraint("Symmetric", 23, 3, 25, 3, -1, 1))
sketch2.addConstraint(Sketcher.Constraint("Symmetric", 2, 3, 4, 3, -2))
sketch2.addConstraint(Sketcher.Constraint("Symmetric", 8, 3, 10, 3, -2))
sketch2.addConstraint(Sketcher.Constraint("Symmetric", 9, 3, 11, 3, -2))
sketch2.addConstraint(Sketcher.Constraint("Symmetric", 14, 3, 16, 3, -2))
sketch2.addConstraint(Sketcher.Constraint("Symmetric", 15, 3, 17, 3, -2))
sketch2.addConstraint(Sketcher.Constraint("Symmetric", 23, 3, 24, 3, -2))
sketch2.addConstraint(Sketcher.Constraint("PointOnObject", 3, 3, -2))
sketch2.addConstraint(Sketcher.Constraint("Horizontal", 2, 3, 3, 3))
sketch2.addConstraint(Sketcher.Constraint("Horizontal", 12, 3, 14, 3))
sketch2.addConstraint(Sketcher.Constraint("Horizontal", 13, 3, 15, 3))
sketch2.addConstraint(Sketcher.Constraint("Horizontal", 7, 3, 22, 3))
sketch2.addConstraint(Sketcher.Constraint("Vertical", 0, 3, 1, 3))
sketch2.addConstraint(Sketcher.Constraint("Vertical", 14, 3, 15, 3))
sketch2.addConstraint(Sketcher.Constraint("Diameter", 0, 3.0))
sketch2.addConstraint(Sketcher.Constraint("DistanceX", 0, 3, -1, 1, 92.0))
sketch2.addConstraint(Sketcher.Constraint("DistanceX", 2, 3, -1, 1, 20.0))
sketch2.addConstraint(Sketcher.Constraint("DistanceY", 2, 3, -1, 1, 20.0))
sketch2.addConstraint(Sketcher.Constraint("DistanceX", -1, 1, 14, 3, 112.0))
sketch2.addConstraint(Sketcher.Constraint("DistanceX", -1, 1, 22, 3, 40.0))
sketch2.addConstraint(Sketcher.Constraint("DistanceY", 0, 3, 1, 3, 20.0))
sketch2.addConstraint(Sketcher.Constraint("DistanceY", 0, 3, -1, 1, 69.3))
sketch2.setExpression("Constraints[51]", "Params.sketch2_diameter")
doc.recompute()
hole = doc.addObject("PartDesign::Hole", "Hole")
body.addObject(hole)
hole.Profile = sketch2
hole.ThreadType = "None"
hole.setExpression("Diameter", "Params.hole_diameter")
hole.DepthType = "ThroughAll"
hole.Reversed = True

# Sketch on XZ plane
sketch3 = doc.addObject("Sketcher::SketchObject", "Sketch002")
body.addObject(sketch3)
sketch3.AttachmentSupport = (doc.XZ_Plane, [""])
sketch3.MapMode = "FlatFace"
sketch3.addGeometry(Part.Circle(V(112.2, 95.3, 0), V(0, 0, 1), 1.5), False)
sketch3.addGeometry(Part.Circle(V(92, 95.3, 0), V(0, 0, 1), 1.5), False)
sketch3.addConstraint(Sketcher.Constraint("Horizontal", 0, 3, 1, 3))
sketch3.addConstraint(Sketcher.Constraint("Diameter", 0, 2.991709))
sketch3.addConstraint(Sketcher.Constraint("Diameter", 1, 3.020176))
sketch3.addConstraint(Sketcher.Constraint("DistanceY", -1, 1, 0, 3, 95.27359))
sketch3.addConstraint(Sketcher.Constraint("DistanceX", -1, 1, 1, 3, 91.99572))
sketch3.addConstraint(Sketcher.Constraint("DistanceX", -1, 1, 0, 3, 112.218707))
pocket1 = doc.addObject("PartDesign::Pocket", "Pocket")
body.addObject(pocket1)
pocket1.Profile = sketch3
pocket1.setExpression("Length", "Params.pocket1_length")

doc.recompute()
